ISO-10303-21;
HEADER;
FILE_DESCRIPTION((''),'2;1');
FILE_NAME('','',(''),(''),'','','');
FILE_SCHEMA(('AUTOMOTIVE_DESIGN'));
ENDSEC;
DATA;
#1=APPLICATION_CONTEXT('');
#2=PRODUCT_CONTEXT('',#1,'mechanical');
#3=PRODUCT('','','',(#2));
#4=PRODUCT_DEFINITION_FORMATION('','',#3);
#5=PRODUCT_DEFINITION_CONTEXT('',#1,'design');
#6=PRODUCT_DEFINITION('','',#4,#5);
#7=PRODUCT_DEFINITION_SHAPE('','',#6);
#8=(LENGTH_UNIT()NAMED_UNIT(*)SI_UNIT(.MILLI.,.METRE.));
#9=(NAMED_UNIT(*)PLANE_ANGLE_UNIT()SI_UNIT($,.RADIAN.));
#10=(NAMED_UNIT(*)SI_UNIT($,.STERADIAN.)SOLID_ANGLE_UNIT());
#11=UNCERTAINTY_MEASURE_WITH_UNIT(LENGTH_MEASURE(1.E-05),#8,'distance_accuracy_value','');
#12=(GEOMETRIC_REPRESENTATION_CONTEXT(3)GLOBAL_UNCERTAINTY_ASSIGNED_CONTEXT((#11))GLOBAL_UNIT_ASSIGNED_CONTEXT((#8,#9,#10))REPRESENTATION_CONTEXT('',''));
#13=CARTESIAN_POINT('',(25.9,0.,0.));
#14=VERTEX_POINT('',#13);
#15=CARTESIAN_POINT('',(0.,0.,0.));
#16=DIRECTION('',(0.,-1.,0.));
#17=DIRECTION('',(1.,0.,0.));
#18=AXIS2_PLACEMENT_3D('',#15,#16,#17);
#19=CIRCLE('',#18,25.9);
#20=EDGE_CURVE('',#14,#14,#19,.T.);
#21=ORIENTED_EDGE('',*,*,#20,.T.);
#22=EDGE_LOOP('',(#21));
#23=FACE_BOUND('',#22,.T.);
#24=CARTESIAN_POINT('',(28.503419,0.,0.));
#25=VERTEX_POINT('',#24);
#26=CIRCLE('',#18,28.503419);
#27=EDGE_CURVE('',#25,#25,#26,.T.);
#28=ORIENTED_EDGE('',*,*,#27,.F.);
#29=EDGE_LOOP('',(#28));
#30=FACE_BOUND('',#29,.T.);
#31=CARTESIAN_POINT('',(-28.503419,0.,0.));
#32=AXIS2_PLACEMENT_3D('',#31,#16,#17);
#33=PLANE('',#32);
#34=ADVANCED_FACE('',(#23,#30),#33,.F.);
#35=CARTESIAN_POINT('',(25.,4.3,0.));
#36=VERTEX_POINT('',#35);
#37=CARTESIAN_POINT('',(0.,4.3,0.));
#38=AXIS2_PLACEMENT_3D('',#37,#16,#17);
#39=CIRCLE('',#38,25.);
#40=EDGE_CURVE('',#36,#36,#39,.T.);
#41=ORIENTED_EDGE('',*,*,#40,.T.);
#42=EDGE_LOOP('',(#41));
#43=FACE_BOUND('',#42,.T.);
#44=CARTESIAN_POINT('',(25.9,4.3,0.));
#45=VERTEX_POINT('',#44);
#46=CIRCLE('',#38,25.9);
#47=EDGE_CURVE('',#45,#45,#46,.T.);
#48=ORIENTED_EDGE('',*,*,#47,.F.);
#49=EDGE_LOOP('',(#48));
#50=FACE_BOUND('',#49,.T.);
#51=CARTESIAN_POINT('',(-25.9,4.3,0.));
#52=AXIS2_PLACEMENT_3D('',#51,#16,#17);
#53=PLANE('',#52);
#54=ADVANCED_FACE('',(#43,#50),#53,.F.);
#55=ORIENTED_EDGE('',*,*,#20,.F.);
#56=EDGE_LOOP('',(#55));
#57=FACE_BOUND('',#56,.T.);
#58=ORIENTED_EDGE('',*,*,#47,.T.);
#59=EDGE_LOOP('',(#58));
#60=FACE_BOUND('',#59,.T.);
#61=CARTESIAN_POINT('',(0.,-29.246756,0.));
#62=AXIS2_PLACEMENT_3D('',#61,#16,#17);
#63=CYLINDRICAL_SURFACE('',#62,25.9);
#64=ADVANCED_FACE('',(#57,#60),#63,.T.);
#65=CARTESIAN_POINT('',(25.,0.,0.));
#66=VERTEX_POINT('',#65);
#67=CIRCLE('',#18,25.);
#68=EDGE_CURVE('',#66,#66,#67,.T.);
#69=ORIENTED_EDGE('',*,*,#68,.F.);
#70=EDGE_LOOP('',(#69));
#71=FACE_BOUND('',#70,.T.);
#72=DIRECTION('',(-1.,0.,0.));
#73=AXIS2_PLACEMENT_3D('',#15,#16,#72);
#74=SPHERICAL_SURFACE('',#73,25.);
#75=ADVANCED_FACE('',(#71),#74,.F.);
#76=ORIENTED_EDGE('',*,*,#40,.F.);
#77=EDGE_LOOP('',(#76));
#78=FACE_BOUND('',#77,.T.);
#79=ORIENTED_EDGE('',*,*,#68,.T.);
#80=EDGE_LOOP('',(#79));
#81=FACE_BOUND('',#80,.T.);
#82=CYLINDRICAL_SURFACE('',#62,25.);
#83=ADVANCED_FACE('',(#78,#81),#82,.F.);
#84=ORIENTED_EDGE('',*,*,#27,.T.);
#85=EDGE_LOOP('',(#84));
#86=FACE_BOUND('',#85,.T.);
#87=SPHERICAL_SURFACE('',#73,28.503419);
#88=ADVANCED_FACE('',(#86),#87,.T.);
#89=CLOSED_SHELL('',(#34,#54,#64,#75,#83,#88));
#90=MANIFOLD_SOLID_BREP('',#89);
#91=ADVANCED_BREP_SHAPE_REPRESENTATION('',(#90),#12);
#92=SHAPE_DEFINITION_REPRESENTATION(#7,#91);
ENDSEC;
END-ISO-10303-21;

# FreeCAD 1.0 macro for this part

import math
import FreeCAD as App
import Part
import Sketcher
from FreeCAD import Vector

doc = App.newDocument("Part")
body = doc.addObject("PartDesign::Body", "Body")

# Sketch on XY plane
sketch1 = body.newObject("Sketcher::SketchObject", "Sketch")
sketch1.AttachmentSupport = (doc.getObject("XY_Plane"), [""])
sketch1.MapMode = "FlatFace"
sketch1.addGeometry([
    Part.LineSegment(Vector(0, -28.5, 0), Vector(0, -25, 0)),  # 0
    Part.ArcOfCircle(Part.Circle(Vector(0, 0, 0), Vector(0, 0, 1), 25), math.radians(-117), math.radians(-90)),  # 1
    Part.ArcOfCircle(Part.Circle(Vector(0, 0, 0), Vector(0, 0, 1), 25), math.radians(-121.9), math.radians(-116.85)),  # 2
    Part.ArcOfCircle(Part.Circle(Vector(0, 0, 0), Vector(0, 0, 1), 25), math.radians(-148), math.radians(-122)),  # 3
    Part.ArcOfCircle(Part.Circle(Vector(0, 0, 0), Vector(0, 0, 1), 25), math.radians(-154.16), math.radians(-148.19)),  # 4
    Part.ArcOfCircle(Part.Circle(Vector(0, 0, 0), Vector(0, 0, 1), 25), math.radians(-156.82), math.radians(-154.16)),  # 5
    Part.ArcOfCircle(Part.Circle(Vector(0, 0, 0), Vector(0, 0, 1), 25), math.radians(180), math.radians(203)),  # 6
    Part.LineSegment(Vector(-25, 0, 0), Vector(-25, 4.3, 0)),  # 7
    Part.LineSegment(Vector(-25, 4.3, 0), Vector(-25.9, 4.3, 0)),  # 8
    Part.LineSegment(Vector(-25.9, 4.3, 0), Vector(-25.9, 0, 0)),  # 9
    Part.LineSegment(Vector(-25.9, 0, 0), Vector(-28.5, 0, 0)),  # 10
    Part.ArcOfCircle(Part.Circle(Vector(0, 0, 0), Vector(0, 0, 1), 28.5), math.radians(180), math.radians(270)),  # 11
], False)
sketch1.addConstraint([
    Sketcher.Constraint("Coincident", 0, 2, 1, 2),
    Sketcher.Constraint("Tangent", 1, 1, 2, 2),
    Sketcher.Constraint("Tangent", 2, 1, 3, 2),
    Sketcher.Constraint("Tangent", 3, 1, 4, 2),
    Sketcher.Constraint("Tangent", 4, 1, 5, 2),
    Sketcher.Constraint("Tangent", 5, 1, 6, 2),
    Sketcher.Constraint("Tangent", 6, 1, 7, 1),
    Sketcher.Constraint("Coincident", 7, 2, 8, 1),
    Sketcher.Constraint("Coincident", 8, 2, 9, 1),
    Sketcher.Constraint("Coincident", 9, 2, 10, 1),
    Sketcher.Constraint("Coincident", 10, 2, 11, 1),
    Sketcher.Constraint("Coincident", 11, 2, 0, 1),
    Sketcher.Constraint("Vertical", 0),
    Sketcher.Constraint("Vertical", 7),
    Sketcher.Constraint("Horizontal", 8),
    Sketcher.Constraint("Vertical", 9),
    Sketcher.Constraint("Horizontal", 10),
    Sketcher.Constraint("Coincident", 1, 3, -1, 1),
    Sketcher.Constraint("Coincident", 3, 3, -1, 1),
    Sketcher.Constraint("Coincident", 5, 3, -1, 1),
    Sketcher.Constraint("Coincident", 11, 3, -1, 1),
    Sketcher.Constraint("Equal", 5, 6),
    Sketcher.Constraint("PointOnObject", 0, 2, -2),
    Sketcher.Constraint("PointOnObject", 9, 2, -1),
    Sketcher.Constraint("Radius", 1, 25.0),
    Sketcher.Constraint("DistanceX", 8, 2, 8, 1, 0.9),
    Sketcher.Constraint("DistanceY", 7, 1, 7, 2, 4.3),
    Sketcher.Constraint("DistanceX", 4, 1, -1, 1, 22.5),
    Sketcher.Constraint("Radius", 11, 28.503419),
    Sketcher.Constraint("DistanceX", 5, 1, -1, 1, 22.982499),
    Sketcher.Constraint("DistanceX", 2, 1, 1, 1, 1.919599),
    Sketcher.Constraint("DistanceY", 3, 1, -1, 1, 13.177961),
    Sketcher.Constraint("DistanceX", 2, 1, 5, 3, 13.210051),
])
revolution = body.newObject("PartDesign::Revolution", "Revolution")
revolution.Profile = sketch1
revolution.ReferenceAxis = (sketch1, ["V_Axis"])
revolution.Angle = 360

doc.recompute()
